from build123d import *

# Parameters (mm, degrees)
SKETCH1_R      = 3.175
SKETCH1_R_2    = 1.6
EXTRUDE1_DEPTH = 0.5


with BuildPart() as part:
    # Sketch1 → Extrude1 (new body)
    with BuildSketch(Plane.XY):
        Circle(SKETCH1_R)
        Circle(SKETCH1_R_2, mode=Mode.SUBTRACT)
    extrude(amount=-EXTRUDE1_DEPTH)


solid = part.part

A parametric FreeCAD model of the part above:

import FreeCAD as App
import Part
import Sketcher

V = App.Vector

doc = App.newDocument("Part")
body = doc.addObject("PartDesign::Body", "Body")

# Sketch on XY plane
sketch1 = body.newObject("Sketcher::SketchObject", "Sketch")
sketch1.AttachmentSupport = (doc.getObject("XY_Plane"), [""])
sketch1.MapMode = "FlatFace"
sketch1.addGeometry([
    Part.Circle(V(0, 0, 0), V(0, 0, 1), 3.2),
    Part.Circle(V(0, 0, 0), V(0, 0, 1), 1.6),
], False)
sketch1.addConstraint([
    Sketcher.Constraint("Coincident", 0, 3, -1, 1),
    Sketcher.Constraint("Coincident", 1, 3, -1, 1),
    Sketcher.Constraint("Diameter", 1, 3.2),
    Sketcher.Constraint("Diameter", 0, 6.35),
])
pad1 = body.newObject("PartDesign::Pad", "Pad")
pad1.Profile = sketch1
pad1.Length = 0.5
pad1.Reversed = True

doc.recompute()
